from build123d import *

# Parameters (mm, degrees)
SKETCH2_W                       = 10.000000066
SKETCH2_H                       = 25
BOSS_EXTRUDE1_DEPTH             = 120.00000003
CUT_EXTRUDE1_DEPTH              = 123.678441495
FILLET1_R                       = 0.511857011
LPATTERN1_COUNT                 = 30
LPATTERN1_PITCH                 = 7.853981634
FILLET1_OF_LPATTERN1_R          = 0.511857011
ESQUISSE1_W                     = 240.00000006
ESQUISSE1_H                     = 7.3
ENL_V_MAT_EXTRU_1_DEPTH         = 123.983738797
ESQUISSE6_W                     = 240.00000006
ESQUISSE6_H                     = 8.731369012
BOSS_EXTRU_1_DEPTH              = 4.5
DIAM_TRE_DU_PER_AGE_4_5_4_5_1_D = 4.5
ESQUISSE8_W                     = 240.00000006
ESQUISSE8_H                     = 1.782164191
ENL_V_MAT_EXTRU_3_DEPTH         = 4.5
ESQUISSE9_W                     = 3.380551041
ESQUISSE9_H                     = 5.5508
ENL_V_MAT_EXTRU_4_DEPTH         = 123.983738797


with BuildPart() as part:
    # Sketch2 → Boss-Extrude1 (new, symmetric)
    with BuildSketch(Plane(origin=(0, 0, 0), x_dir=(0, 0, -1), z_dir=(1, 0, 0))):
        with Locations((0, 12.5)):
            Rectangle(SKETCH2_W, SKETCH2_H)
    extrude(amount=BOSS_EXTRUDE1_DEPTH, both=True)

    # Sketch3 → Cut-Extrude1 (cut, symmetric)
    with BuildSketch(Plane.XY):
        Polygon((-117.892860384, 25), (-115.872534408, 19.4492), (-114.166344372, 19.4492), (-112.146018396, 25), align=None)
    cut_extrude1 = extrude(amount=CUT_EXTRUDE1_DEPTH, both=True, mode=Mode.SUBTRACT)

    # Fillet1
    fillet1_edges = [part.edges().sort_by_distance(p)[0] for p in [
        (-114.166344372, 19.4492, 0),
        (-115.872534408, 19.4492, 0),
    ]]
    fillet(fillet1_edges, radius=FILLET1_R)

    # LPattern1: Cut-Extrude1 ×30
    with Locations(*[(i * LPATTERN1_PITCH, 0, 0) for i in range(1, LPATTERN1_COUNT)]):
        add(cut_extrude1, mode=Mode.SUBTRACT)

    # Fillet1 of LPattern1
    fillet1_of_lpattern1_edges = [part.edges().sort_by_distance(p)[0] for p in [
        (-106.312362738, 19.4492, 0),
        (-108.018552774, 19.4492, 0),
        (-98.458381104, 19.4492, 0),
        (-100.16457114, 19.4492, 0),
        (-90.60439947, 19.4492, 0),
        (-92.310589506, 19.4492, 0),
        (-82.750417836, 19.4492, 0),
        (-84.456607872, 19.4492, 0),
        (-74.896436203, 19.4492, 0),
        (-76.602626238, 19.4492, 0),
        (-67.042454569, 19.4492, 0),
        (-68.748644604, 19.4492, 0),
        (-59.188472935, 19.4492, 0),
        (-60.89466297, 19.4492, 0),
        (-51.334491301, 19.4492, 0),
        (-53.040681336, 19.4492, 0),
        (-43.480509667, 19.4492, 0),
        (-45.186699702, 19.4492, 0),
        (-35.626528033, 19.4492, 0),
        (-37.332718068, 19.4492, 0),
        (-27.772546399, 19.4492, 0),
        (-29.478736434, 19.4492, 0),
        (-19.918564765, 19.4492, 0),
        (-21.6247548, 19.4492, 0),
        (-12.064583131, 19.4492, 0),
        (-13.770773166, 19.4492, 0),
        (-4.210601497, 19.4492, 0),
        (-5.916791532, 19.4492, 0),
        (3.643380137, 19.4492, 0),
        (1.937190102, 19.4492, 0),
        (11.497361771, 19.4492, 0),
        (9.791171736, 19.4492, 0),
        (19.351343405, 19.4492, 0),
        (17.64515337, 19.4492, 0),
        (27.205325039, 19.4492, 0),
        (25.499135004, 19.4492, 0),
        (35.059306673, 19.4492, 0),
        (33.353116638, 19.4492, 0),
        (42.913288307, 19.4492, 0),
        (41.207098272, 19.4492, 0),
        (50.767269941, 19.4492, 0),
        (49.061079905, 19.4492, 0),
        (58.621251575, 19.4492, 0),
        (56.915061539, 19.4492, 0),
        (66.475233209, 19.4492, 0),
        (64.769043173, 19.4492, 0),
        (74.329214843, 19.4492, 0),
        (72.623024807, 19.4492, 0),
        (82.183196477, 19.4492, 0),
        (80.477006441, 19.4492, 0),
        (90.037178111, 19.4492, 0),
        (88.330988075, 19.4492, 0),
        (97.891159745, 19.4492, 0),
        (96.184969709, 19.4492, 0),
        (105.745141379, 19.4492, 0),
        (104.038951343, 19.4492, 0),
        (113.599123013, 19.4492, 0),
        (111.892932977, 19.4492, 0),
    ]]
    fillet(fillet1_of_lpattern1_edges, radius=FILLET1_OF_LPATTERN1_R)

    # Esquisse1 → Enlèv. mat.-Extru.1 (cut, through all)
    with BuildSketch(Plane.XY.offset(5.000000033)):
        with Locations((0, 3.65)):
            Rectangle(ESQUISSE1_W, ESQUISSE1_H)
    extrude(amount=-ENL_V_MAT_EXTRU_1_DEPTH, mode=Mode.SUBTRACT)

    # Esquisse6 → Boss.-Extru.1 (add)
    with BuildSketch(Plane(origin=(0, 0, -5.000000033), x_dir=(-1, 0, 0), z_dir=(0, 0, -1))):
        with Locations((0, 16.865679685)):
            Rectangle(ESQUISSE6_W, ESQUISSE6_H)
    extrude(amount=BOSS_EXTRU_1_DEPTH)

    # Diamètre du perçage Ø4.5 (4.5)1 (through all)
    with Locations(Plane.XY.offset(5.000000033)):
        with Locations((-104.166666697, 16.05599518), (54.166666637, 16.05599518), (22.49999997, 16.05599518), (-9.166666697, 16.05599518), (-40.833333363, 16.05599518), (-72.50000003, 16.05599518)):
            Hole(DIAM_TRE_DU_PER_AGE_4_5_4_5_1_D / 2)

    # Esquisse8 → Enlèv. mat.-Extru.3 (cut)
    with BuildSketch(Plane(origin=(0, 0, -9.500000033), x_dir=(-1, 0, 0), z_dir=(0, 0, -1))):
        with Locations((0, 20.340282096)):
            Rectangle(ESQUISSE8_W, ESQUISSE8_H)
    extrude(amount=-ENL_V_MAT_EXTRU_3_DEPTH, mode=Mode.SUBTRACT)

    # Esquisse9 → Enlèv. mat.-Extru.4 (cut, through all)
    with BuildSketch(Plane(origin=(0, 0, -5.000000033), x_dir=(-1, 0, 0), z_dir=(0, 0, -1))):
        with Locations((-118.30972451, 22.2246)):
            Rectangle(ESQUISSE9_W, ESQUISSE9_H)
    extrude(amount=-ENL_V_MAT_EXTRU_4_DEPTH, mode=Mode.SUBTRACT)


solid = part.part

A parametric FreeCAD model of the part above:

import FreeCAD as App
import Part
import Sketcher

V = App.Vector
Q = App.Units.Quantity


def edges_at(feature, points):
    """Names of the edges that pass closest to the given points."""
    edges = feature.Shape.Edges
    near = lambda p: min(range(len(edges)), key=lambda i: edges[i].distToShape(Part.Vertex(*p))[0])
    return sorted({f"Edge{near(p) + 1}" for p in points})

doc = App.newDocument("Part")
body = doc.addObject("PartDesign::Body", "Body")

sketch1 = body.newObject("Sketcher::SketchObject", "Sketch")
sketch1.AttachmentSupport = (doc.getObject("YZ_Plane"), [""])
sketch1.MapMode = "FlatFace"
sketch1.addGeometry(Part.LineSegment(V(25, 5, 0), V(0, 5, 0)), False)
sketch1.addGeometry(Part.LineSegment(V(0, 5, 0), V(0, -5, 0)), False)
sketch1.addGeometry(Part.LineSegment(V(0, -5, 0), V(25, -5, 0)), False)
sketch1.addGeometry(Part.LineSegment(V(25, -5, 0), V(25, 5, 0)), False)
sketch1.addConstraint(Sketcher.Constraint("Coincident", 0, 2, 1, 1))
sketch1.addConstraint(Sketcher.Constraint("Coincident", 1, 2, 2, 1))
sketch1.addConstraint(Sketcher.Constraint("Coincident", 2, 2, 3, 1))
sketch1.addConstraint(Sketcher.Constraint("Coincident", 3, 2, 0, 1))
sketch1.addConstraint(Sketcher.Constraint("Horizontal", 0))
sketch1.addConstraint(Sketcher.Constraint("Vertical", 1))
sketch1.addConstraint(Sketcher.Constraint("Horizontal", 2))
sketch1.addConstraint(Sketcher.Constraint("Vertical", 3))
sketch1.addConstraint(Sketcher.Constraint("Symmetric", 0, 2, 1, 2, -1, 1))
sketch1.addConstraint(Sketcher.Constraint("DistanceX", 0, 2, 0, 1, Q("25 mm")))
sketch1.addConstraint(Sketcher.Constraint("DistanceY", 1, 2, 1, 1, Q("10 mm")))
pad1 = body.newObject("PartDesign::Pad", "Pad")
pad1.Profile = sketch1
pad1.Length = 240
pad1.Midplane = True

sketch2 = body.newObject("Sketcher::SketchObject", "Sketch001")
sketch2.AttachmentSupport = (doc.getObject("XY_Plane"), [""])
sketch2.MapMode = "FlatFace"
sketch2.addGeometry(Part.LineSegment(V(-117.89286, 25, 0), V(-115.872534, 19.4492, 0)), False)
sketch2.addGeometry(Part.LineSegment(V(-115.872534, 19.4492, 0), V(-114.166344, 19.4492, 0)), False)
sketch2.addGeometry(Part.LineSegment(V(-114.166344, 19.4492, 0), V(-112.146018, 25, 0)), False)
sketch2.addGeometry(Part.LineSegment(V(-112.146018, 25, 0), V(-117.89286, 25, 0)), False)
sketch2.addConstraint(Sketcher.Constraint("Coincident", 0, 2, 1, 1))
sketch2.addConstraint(Sketcher.Constraint("Coincident", 1, 2, 2, 1))
sketch2.addConstraint(Sketcher.Constraint("Coincident", 2, 2, 3, 1))
sketch2.addConstraint(Sketcher.Constraint("Coincident", 3, 2, 0, 1))
sketch2.addConstraint(Sketcher.Constraint("Horizontal", 1))
sketch2.addConstraint(Sketcher.Constraint("Horizontal", 3))
sketch2.addConstraint(Sketcher.Constraint("Equal", 0, 2))
sketch2.addConstraint(Sketcher.Constraint("Angle", 0, Q("-70 deg")))
sketch2.addConstraint(Sketcher.Constraint("DistanceY", -1, 1, 2, 2, Q("25 mm")))
sketch2.addConstraint(Sketcher.Constraint("DistanceX", 1, 1, 1, 2, Q("1.70619 mm")))
sketch2.addConstraint(Sketcher.Constraint("DistanceX", 3, 2, 3, 1, Q("5.746842 mm")))
sketch2.addConstraint(Sketcher.Constraint("DistanceX", 2, 2, -1, 1, Q("112.146018 mm")))
pocket1 = body.newObject("PartDesign::Pocket", "Pocket")
pocket1.Profile = sketch2
pocket1.Length = 247.356883
pocket1.Midplane = True
doc.recompute()

fillet = body.newObject("PartDesign::Fillet", "Fillet")
fillet.Base = (pocket1, edges_at(pocket1, [(-114.166, 19.449, 0), (-115.873, 19.449, 0)]))
fillet.Radius = 0.511857
doc.recompute()

linearpattern = body.newObject("PartDesign::LinearPattern", "LinearPattern")
linearpattern.Originals = [pocket1]
linearpattern.Direction = (doc.getObject("X_Axis"), [""])
linearpattern.Mode = "offset"
linearpattern.Offset = 7.853982
linearpattern.Occurrences = 30
body.Tip = linearpattern
doc.recompute()

fillet2 = body.newObject("PartDesign::Fillet", "Fillet001")
fillet2.Base = (linearpattern, edges_at(linearpattern, [
    (-106.312, 19.449, 0),
    (-108.019, 19.449, 0),
    (-98.458, 19.449, 0),
    (-100.165, 19.449, 0),
    (-90.604, 19.449, 0),
    (-92.311, 19.449, 0),
    (-82.75, 19.449, 0),
    (-84.457, 19.449, 0),
    (-74.896, 19.449, 0),
    (-76.603, 19.449, 0),
    (-67.042, 19.449, 0),
    (-68.749, 19.449, 0),
    (-59.188, 19.449, 0),
    (-60.895, 19.449, 0),
    (-51.334, 19.449, 0),
    (-53.041, 19.449, 0),
    (-43.481, 19.449, 0),
    (-45.187, 19.449, 0),
    (-35.627, 19.449, 0),
    (-37.333, 19.449, 0),
    (-27.773, 19.449, 0),
    (-29.479, 19.449, 0),
    (-19.919, 19.449, 0),
    (-21.625, 19.449, 0),
    (-12.065, 19.449, 0),
    (-13.771, 19.449, 0),
    (-4.211, 19.449, 0),
    (-5.917, 19.449, 0),
    (3.643, 19.449, 0),
    (1.937, 19.449, 0),
    (11.497, 19.449, 0),
    (9.791, 19.449, 0),
    (19.351, 19.449, 0),
    (17.645, 19.449, 0),
    (27.205, 19.449, 0),
    (25.499, 19.449, 0),
    (35.059, 19.449, 0),
    (33.353, 19.449, 0),
    (42.913, 19.449, 0),
    (41.207, 19.449, 0),
    (50.767, 19.449, 0),
    (49.061, 19.449, 0),
    (58.621, 19.449, 0),
    (56.915, 19.449, 0),
    (66.475, 19.449, 0),
    (64.769, 19.449, 0),
    (74.329, 19.449, 0),
    (72.623, 19.449, 0),
    (82.183, 19.449, 0),
    (80.477, 19.449, 0),
    (90.037, 19.449, 0),
    (88.331, 19.449, 0),
    (97.891, 19.449, 0),
    (96.185, 19.449, 0),
    (105.745, 19.449, 0),
    (104.039, 19.449, 0),
    (113.599, 19.449, 0),
    (111.893, 19.449, 0),
]))
fillet2.Radius = 0.511857

sketch3 = body.newObject("Sketcher::SketchObject", "Sketch002")
sketch3.AttachmentSupport = (doc.getObject("XY_Plane"), [""])
sketch3.MapMode = "FlatFace"
sketch3.AttachmentOffset = App.Placement(V(0, 0, 5), App.Rotation())
sketch3.addGeometry(Part.LineSegment(V(-120, 7.3, 0), V(-120, 0, 0)), False)
sketch3.addGeometry(Part.LineSegment(V(-120, 0, 0), V(120, 0, 0)), False)
sketch3.addGeometry(Part.LineSegment(V(120, 0, 0), V(120, 7.3, 0)), False)
sketch3.addGeometry(Part.LineSegment(V(120, 7.3, 0), V(-120, 7.3, 0)), False)
sketch3.addConstraint(Sketcher.Constraint("Coincident", 0, 2, 1, 1))
sketch3.addConstraint(Sketcher.Constraint("Coincident", 1, 2, 2, 1))
sketch3.addConstraint(Sketcher.Constraint("Coincident", 2, 2, 3, 1))
sketch3.addConstraint(Sketcher.Constraint("Coincident", 3, 2, 0, 1))
sketch3.addConstraint(Sketcher.Constraint("Vertical", 0))
sketch3.addConstraint(Sketcher.Constraint("Horizontal", 1))
sketch3.addConstraint(Sketcher.Constraint("Vertical", 2))
sketch3.addConstraint(Sketcher.Constraint("Horizontal", 3))
sketch3.addConstraint(Sketcher.Constraint("Symmetric", 0, 2, 1, 2, -1, 1))
sketch3.addConstraint(Sketcher.Constraint("DistanceX", 1, 1, 1, 2, Q("240 mm")))
sketch3.addConstraint(Sketcher.Constraint("DistanceY", 0, 2, 0, 1, Q("7.3 mm")))
pocket2 = body.newObject("PartDesign::Pocket", "Pocket001")
pocket2.Profile = sketch3
pocket2.Type = "ThroughAll"

sketch4 = body.newObject("Sketcher::SketchObject", "Sketch003")
sketch4.AttachmentSupport = (doc.getObject("XY_Plane"), [""])
sketch4.MapMode = "FlatFace"
sketch4.AttachmentOffset = App.Placement(V(0, 0, -5), App.Rotation())
sketch4.addGeometry(Part.LineSegment(V(120, 21.231364, 0), V(120, 12.499995, 0)), False)
sketch4.addGeometry(Part.LineSegment(V(120, 12.499995, 0), V(-120, 12.499995, 0)), False)
sketch4.addGeometry(Part.LineSegment(V(-120, 12.499995, 0), V(-120, 21.231364, 0)), False)
sketch4.addGeometry(Part.LineSegment(V(-120, 21.231364, 0), V(120, 21.231364, 0)), False)
sketch4.addConstraint(Sketcher.Constraint("Coincident", 0, 2, 1, 1))
sketch4.addConstraint(Sketcher.Constraint("Coincident", 1, 2, 2, 1))
sketch4.addConstraint(Sketcher.Constraint("Coincident", 2, 2, 3, 1))
sketch4.addConstraint(Sketcher.Constraint("Coincident", 3, 2, 0, 1))
sketch4.addConstraint(Sketcher.Constraint("Vertical", 0))
sketch4.addConstraint(Sketcher.Constraint("Horizontal", 1))
sketch4.addConstraint(Sketcher.Constraint("Vertical", 2))
sketch4.addConstraint(Sketcher.Constraint("Horizontal", 3))
sketch4.addConstraint(Sketcher.Constraint("DistanceX", 1, 2, 1, 1, Q("240 mm")))
sketch4.addConstraint(Sketcher.Constraint("DistanceX", -1, 1, 0, 2, Q("120 mm")))
sketch4.addConstraint(Sketcher.Constraint("DistanceY", 0, 2, 0, 1, Q("8.731369 mm")))
sketch4.addConstraint(Sketcher.Constraint("DistanceY", -1, 1, 0, 2, Q("12.499995 mm")))
pad2 = body.newObject("PartDesign::Pad", "Pad001")
pad2.Profile = sketch4
pad2.Length = 4.5
pad2.Reversed = True

sketch5 = body.newObject("Sketcher::SketchObject", "Sketch004")
sketch5.AttachmentSupport = (doc.getObject("XY_Plane"), [""])
sketch5.MapMode = "FlatFace"
sketch5.AttachmentOffset = App.Placement(V(0, 0, 5), App.Rotation())
sketch5.addGeometry(Part.Circle(V(-104.166667, 16.055995, 0), V(0, 0, 1), 2.25), False)
sketch5.addGeometry(Part.Circle(V(54.166667, 16.055995, 0), V(0, 0, 1), 2.25), False)
sketch5.addGeometry(Part.Circle(V(22.5, 16.055995, 0), V(0, 0, 1), 2.25), False)
sketch5.addGeometry(Part.Circle(V(-9.166667, 16.055995, 0), V(0, 0, 1), 2.25), False)
sketch5.addGeometry(Part.Circle(V(-40.833333, 16.055995, 0), V(0, 0, 1), 2.25), False)
sketch5.addGeometry(Part.Circle(V(-72.5, 16.055995, 0), V(0, 0, 1), 2.25), False)
sketch5.addConstraint(Sketcher.Constraint("Equal", 0, 1))
sketch5.addConstraint(Sketcher.Constraint("Equal", 1, 2))
sketch5.addConstraint(Sketcher.Constraint("Equal", 2, 3))
sketch5.addConstraint(Sketcher.Constraint("Equal", 3, 4))
sketch5.addConstraint(Sketcher.Constraint("Equal", 4, 5))
sketch5.addConstraint(Sketcher.Constraint("Horizontal", 0, 3, 1, 3))
sketch5.addConstraint(Sketcher.Constraint("Horizontal", 1, 3, 2, 3))
sketch5.addConstraint(Sketcher.Constraint("Horizontal", 2, 3, 3, 3))
sketch5.addConstraint(Sketcher.Constraint("Horizontal", 3, 3, 4, 3))
sketch5.addConstraint(Sketcher.Constraint("Horizontal", 4, 3, 5, 3))
sketch5.addConstraint(Sketcher.Constraint("Diameter", 0, Q("4.5 mm")))
sketch5.addConstraint(Sketcher.Constraint("DistanceX", 0, 3, 3, 3, Q("95 mm")))
sketch5.addConstraint(Sketcher.Constraint("DistanceX", 4, 3, 1, 3, Q("95 mm")))
sketch5.addConstraint(Sketcher.Constraint("DistanceX", 5, 3, 2, 3, Q("95 mm")))
sketch5.addConstraint(Sketcher.Constraint("DistanceX", -1, 1, 2, 3, Q("22.5 mm")))
sketch5.addConstraint(Sketcher.Constraint("DistanceX", 0, 3, -1, 1, Q("104.166667 mm")))
sketch5.addConstraint(Sketcher.Constraint("DistanceY", -1, 1, 0, 3, Q("16.055995 mm")))
sketch5.addConstraint(Sketcher.Constraint("DistanceX", -1, 1, 1, 3, Q("54.166667 mm")))
doc.recompute()
hole = body.newObject("PartDesign::Hole", "Hole")
hole.Profile = sketch5
hole.ThreadType = "None"
hole.Diameter = 4.5
hole.DepthType = "ThroughAll"

sketch6 = body.newObject("Sketcher::SketchObject", "Sketch005")
sketch6.AttachmentSupport = (doc.getObject("XY_Plane"), [""])
sketch6.MapMode = "FlatFace"
sketch6.AttachmentOffset = App.Placement(V(0, 0, -9.5), App.Rotation())
sketch6.addGeometry(Part.LineSegment(V(120, 21.231364, 0), V(120, 19.4492, 0)), False)
sketch6.addGeometry(Part.LineSegment(V(120, 19.4492, 0), V(-120, 19.4492, 0)), False)
sketch6.addGeometry(Part.LineSegment(V(-120, 19.4492, 0), V(-120, 21.231364, 0)), False)
sketch6.addGeometry(Part.LineSegment(V(-120, 21.231364, 0), V(120, 21.231364, 0)), False)
sketch6.addConstraint(Sketcher.Constraint("Coincident", 0, 2, 1, 1))
sketch6.addConstraint(Sketcher.Constraint("Coincident", 1, 2, 2, 1))
sketch6.addConstraint(Sketcher.Constraint("Coincident", 2, 2, 3, 1))
sketch6.addConstraint(Sketcher.Constraint("Coincident", 3, 2, 0, 1))
sketch6.addConstraint(Sketcher.Constraint("Vertical", 0))
sketch6.addConstraint(Sketcher.Constraint("Horizontal", 1))
sketch6.addConstraint(Sketcher.Constraint("Vertical", 2))
sketch6.addConstraint(Sketcher.Constraint("Horizontal", 3))
sketch6.addConstraint(Sketcher.Constraint("DistanceX", 1, 2, 1, 1, Q("240 mm")))
sketch6.addConstraint(Sketcher.Constraint("DistanceX", -1, 1, 0, 2, Q("120 mm")))
sketch6.addConstraint(Sketcher.Constraint("DistanceY", -1, 1, 0, 2, Q("19.4492 mm")))
sketch6.addConstraint(Sketcher.Constraint("DistanceY", 0, 2, 0, 1, Q("1.782164 mm")))
pocket3 = body.newObject("PartDesign::Pocket", "Pocket002")
pocket3.Profile = sketch6
pocket3.Length = 4.5
pocket3.Reversed = True

sketch7 = body.newObject("Sketcher::SketchObject", "Sketch006")
sketch7.AttachmentSupport = (doc.getObject("XY_Plane"), [""])
sketch7.MapMode = "FlatFace"
sketch7.AttachmentOffset = App.Placement(V(0, 0, -5), App.Rotation())
sketch7.addGeometry(Part.LineSegment(V(120, 25, 0), V(120, 19.4492, 0)), False)
sketch7.addGeometry(Part.LineSegment(V(120, 19.4492, 0), V(116.619449, 19.4492, 0)), False)
sketch7.addGeometry(Part.LineSegment(V(116.619449, 19.4492, 0), V(116.619449, 25, 0)), False)
sketch7.addGeometry(Part.LineSegment(V(116.619449, 25, 0), V(120, 25, 0)), False)
sketch7.addConstraint(Sketcher.Constraint("Coincident", 0, 2, 1, 1))
sketch7.addConstraint(Sketcher.Constraint("Coincident", 1, 2, 2, 1))
sketch7.addConstraint(Sketcher.Constraint("Coincident", 2, 2, 3, 1))
sketch7.addConstraint(Sketcher.Constraint("Coincident", 3, 2, 0, 1))
sketch7.addConstraint(Sketcher.Constraint("Vertical", 0))
sketch7.addConstraint(Sketcher.Constraint("Horizontal", 1))
sketch7.addConstraint(Sketcher.Constraint("Vertical", 2))
sketch7.addConstraint(Sketcher.Constraint("Horizontal", 3))
sketch7.addConstraint(Sketcher.Constraint("DistanceX", -1, 1, 0, 2, Q("120 mm")))
sketch7.addConstraint(Sketcher.Constraint("DistanceY", -1, 1, 2, 2, Q("25 mm")))
sketch7.addConstraint(Sketcher.Constraint("DistanceY", 0, 2, 0, 1, Q("5.5508 mm")))
sketch7.addConstraint(Sketcher.Constraint("DistanceX", 1, 2, 1, 1, Q("3.380551 mm")))
pocket4 = body.newObject("PartDesign::Pocket", "Pocket003")
pocket4.Profile = sketch7
pocket4.Type = "ThroughAll"
pocket4.Reversed = True

doc.recompute()
